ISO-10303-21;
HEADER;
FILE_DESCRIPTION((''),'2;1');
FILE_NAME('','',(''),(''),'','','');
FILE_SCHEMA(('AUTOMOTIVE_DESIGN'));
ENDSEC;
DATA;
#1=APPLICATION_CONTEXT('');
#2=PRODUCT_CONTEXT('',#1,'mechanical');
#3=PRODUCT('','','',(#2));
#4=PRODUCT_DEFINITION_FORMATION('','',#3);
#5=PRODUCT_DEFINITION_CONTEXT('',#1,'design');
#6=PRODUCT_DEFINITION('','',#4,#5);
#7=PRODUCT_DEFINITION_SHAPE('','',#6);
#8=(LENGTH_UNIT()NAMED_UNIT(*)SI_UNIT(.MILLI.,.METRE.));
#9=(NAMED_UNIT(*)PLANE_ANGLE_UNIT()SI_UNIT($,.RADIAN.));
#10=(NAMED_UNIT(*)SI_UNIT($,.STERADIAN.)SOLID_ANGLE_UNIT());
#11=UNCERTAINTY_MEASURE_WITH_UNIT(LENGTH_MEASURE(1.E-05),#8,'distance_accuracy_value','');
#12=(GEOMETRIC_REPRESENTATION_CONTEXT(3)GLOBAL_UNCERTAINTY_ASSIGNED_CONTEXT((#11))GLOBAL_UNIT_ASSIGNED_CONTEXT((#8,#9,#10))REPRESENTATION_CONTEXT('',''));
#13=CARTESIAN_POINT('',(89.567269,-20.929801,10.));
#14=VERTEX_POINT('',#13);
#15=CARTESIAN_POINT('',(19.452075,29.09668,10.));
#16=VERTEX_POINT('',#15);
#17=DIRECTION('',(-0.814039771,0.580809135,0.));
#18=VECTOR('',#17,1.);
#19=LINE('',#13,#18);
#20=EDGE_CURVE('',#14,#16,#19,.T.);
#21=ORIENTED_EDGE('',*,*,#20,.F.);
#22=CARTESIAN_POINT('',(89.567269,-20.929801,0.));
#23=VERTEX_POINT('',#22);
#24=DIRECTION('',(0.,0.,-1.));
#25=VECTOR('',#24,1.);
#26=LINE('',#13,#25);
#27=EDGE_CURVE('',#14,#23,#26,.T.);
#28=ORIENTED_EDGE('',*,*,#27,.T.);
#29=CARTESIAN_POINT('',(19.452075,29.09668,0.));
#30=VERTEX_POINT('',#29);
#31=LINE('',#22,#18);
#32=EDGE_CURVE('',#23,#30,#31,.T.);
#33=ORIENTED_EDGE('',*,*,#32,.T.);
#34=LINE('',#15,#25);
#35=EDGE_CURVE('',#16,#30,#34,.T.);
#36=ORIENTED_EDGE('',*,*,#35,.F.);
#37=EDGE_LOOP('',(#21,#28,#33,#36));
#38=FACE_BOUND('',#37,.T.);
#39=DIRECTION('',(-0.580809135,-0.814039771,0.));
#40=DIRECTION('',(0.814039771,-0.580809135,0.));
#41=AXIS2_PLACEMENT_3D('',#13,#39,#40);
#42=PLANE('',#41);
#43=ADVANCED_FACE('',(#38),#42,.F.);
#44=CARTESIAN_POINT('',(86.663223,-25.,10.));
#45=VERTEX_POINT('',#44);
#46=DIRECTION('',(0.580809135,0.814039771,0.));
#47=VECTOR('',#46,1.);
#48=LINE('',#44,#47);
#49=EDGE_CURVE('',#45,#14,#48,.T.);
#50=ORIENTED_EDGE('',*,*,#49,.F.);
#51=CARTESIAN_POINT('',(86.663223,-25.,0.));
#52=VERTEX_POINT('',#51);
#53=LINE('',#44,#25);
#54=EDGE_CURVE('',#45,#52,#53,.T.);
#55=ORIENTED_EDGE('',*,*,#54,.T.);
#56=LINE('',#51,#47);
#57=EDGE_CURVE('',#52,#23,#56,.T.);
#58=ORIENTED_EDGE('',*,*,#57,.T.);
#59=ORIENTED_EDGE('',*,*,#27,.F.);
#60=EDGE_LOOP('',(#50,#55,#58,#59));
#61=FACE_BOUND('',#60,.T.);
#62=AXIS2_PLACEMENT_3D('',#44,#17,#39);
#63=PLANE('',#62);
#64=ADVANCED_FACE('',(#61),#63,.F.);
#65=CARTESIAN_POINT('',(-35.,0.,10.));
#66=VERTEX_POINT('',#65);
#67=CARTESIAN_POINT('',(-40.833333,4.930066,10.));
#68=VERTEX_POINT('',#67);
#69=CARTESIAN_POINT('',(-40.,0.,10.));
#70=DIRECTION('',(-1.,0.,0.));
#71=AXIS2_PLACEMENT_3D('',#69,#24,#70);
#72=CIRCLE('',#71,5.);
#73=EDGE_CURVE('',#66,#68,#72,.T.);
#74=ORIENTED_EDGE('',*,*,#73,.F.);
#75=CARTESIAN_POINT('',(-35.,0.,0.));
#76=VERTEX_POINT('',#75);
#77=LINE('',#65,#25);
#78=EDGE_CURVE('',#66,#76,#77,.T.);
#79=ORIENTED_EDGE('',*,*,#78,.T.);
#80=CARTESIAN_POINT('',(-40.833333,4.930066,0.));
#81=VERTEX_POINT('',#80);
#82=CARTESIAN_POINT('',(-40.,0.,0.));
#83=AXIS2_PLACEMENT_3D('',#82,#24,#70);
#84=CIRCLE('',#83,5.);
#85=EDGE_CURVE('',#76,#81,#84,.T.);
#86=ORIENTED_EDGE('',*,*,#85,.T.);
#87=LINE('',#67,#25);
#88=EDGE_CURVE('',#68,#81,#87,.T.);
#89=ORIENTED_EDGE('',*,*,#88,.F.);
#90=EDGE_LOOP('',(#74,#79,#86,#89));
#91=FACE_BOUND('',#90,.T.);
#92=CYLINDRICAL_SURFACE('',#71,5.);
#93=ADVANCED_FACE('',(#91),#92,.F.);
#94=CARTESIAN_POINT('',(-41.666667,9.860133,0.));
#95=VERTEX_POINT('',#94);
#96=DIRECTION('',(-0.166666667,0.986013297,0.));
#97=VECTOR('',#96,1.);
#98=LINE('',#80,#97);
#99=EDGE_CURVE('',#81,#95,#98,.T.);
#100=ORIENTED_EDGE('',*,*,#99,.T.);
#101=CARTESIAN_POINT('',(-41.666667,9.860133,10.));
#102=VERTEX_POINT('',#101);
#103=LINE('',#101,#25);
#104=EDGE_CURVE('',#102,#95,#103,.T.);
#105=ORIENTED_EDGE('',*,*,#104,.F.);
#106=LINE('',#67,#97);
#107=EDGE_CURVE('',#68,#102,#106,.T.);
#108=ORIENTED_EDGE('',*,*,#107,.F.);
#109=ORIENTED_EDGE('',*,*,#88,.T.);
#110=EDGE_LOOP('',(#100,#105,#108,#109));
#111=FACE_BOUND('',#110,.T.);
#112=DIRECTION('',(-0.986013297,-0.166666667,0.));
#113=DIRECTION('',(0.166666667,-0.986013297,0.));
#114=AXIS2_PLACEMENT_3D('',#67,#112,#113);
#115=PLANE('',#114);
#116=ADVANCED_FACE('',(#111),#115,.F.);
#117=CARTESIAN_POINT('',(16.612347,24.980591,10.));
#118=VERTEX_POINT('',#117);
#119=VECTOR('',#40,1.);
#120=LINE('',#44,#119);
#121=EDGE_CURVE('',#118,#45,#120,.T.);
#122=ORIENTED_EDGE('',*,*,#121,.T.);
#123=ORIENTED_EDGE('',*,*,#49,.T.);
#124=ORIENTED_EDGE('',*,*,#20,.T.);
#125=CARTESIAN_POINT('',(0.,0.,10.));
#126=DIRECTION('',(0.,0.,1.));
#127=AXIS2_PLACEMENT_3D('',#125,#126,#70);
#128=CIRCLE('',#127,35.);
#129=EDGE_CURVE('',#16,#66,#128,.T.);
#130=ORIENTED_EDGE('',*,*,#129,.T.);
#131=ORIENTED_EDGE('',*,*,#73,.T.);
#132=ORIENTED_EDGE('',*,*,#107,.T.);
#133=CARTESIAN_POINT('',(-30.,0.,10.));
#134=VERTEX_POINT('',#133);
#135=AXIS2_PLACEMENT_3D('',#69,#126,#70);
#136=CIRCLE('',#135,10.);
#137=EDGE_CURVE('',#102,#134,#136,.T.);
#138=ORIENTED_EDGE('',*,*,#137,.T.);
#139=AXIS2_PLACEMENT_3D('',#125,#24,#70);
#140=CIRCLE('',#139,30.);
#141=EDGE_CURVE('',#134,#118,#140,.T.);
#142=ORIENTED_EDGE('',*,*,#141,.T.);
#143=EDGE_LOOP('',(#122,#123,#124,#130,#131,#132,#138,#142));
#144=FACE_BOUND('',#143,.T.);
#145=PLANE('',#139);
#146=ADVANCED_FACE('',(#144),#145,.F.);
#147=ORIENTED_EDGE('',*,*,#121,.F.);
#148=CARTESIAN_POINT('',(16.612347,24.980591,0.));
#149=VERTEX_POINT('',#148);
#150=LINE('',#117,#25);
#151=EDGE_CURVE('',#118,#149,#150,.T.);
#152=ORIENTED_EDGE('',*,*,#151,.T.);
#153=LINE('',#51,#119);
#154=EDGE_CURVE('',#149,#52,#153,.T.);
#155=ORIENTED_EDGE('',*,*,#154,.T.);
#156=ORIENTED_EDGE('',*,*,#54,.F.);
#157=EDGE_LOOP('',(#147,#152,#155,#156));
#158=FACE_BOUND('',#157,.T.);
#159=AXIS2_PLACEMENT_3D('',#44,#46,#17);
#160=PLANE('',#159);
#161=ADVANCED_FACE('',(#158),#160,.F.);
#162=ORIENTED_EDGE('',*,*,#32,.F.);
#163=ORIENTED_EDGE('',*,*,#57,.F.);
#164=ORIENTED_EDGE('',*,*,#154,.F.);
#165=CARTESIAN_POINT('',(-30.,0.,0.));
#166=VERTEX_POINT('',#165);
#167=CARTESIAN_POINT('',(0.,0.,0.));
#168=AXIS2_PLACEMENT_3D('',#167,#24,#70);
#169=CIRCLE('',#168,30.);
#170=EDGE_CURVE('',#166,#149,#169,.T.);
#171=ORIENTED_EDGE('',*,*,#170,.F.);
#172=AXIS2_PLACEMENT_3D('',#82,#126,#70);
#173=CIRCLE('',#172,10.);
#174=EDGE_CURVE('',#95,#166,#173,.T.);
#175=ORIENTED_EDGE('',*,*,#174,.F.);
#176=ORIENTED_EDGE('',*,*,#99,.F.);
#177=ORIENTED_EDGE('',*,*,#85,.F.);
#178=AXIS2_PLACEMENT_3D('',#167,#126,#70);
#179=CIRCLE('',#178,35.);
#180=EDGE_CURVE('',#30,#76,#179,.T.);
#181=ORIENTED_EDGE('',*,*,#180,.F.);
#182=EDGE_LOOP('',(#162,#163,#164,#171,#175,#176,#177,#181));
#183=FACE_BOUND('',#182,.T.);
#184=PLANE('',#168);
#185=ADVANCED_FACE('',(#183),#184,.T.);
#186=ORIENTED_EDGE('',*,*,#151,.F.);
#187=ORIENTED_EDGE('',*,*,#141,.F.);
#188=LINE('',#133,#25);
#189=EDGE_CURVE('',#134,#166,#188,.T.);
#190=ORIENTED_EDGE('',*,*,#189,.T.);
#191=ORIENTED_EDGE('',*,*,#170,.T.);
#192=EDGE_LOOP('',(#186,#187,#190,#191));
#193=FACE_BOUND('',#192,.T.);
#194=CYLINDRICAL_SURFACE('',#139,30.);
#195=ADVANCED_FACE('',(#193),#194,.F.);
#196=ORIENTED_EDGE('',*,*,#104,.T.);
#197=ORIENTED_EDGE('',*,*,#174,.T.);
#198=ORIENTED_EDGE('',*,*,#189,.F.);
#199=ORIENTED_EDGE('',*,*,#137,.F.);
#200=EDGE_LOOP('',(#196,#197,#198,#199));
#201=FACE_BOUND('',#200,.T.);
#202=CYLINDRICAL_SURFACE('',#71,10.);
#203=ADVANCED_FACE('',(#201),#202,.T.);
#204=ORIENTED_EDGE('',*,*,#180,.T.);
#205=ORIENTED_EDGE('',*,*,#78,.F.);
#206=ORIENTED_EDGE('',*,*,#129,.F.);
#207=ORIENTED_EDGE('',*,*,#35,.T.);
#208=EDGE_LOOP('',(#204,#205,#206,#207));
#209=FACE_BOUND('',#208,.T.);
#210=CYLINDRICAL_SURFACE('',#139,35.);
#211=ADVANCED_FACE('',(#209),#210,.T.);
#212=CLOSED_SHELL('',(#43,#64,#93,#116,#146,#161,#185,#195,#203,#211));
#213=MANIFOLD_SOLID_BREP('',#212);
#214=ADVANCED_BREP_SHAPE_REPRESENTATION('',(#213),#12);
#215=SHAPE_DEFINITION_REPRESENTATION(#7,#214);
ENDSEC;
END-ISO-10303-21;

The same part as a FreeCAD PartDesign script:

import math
import FreeCAD as App
import Part
import Sketcher

V = App.Vector
Q = App.Units.Quantity

doc = App.newDocument("Part")
body = doc.addObject("PartDesign::Body", "Body")

# Sketch on XY plane
sketch1 = body.newObject("Sketcher::SketchObject", "Sketch")
sketch1.AttachmentSupport = (doc.getObject("XY_Plane"), [""])
sketch1.MapMode = "FlatFace"
sketch1.addGeometry([
    Part.LineSegment(V(89.6, -20.9, 0), V(19.5, 29.1, 0)),  # 0
    Part.ArcOfCircle(Part.Circle(V(0, 0, 0), V(0, 0, 1), 35), math.radians(56), math.radians(180)),  # 1
    Part.ArcOfCircle(Part.Circle(V(-40, 0, 0), V(0, 0, 1), 5), math.radians(100), math.radians(360)),  # 2
    Part.LineSegment(V(-40.8, 4.9, 0), V(-41.7, 9.9, 0)),  # 3
    Part.ArcOfCircle(Part.Circle(V(-40, 0, 0), V(0, 0, 1), 10), math.radians(100), math.radians(360)),  # 4
    Part.ArcOfCircle(Part.Circle(V(0, 0, 0), V(0, 0, 1), 30), math.radians(56), math.radians(180)),  # 5
    Part.LineSegment(V(16.6, 25, 0), V(86.7, -25, 0)),  # 6
    Part.LineSegment(V(86.7, -25, 0), V(89.6, -20.9, 0)),  # 7
], False)
sketch1.addConstraint([
    Sketcher.Constraint("Coincident", 0, 2, 1, 1),
    Sketcher.Constraint("Tangent", 1, 2, 2, 2),
    Sketcher.Constraint("Coincident", 2, 1, 3, 1),
    Sketcher.Constraint("Coincident", 3, 2, 4, 1),
    Sketcher.Constraint("Tangent", 4, 2, 5, 2),
    Sketcher.Constraint("Coincident", 5, 1, 6, 1),
    Sketcher.Constraint("Coincident", 6, 2, 7, 1),
    Sketcher.Constraint("Coincident", 7, 2, 0, 1),
    Sketcher.Constraint("Coincident", 1, 3, -1, 1),
    Sketcher.Constraint("Coincident", 5, 3, -1, 1),
    Sketcher.Constraint("Coincident", 4, 3, 2, 3),
    Sketcher.Constraint("PointOnObject", 2, 3, -1),
    Sketcher.Constraint("Parallel", 0, 6),
    Sketcher.Constraint("Perpendicular", 6, 7),
    Sketcher.Constraint("Equal", 3, 7),
    Sketcher.Constraint("Radius", 1, Q("35 mm")),
    Sketcher.Constraint("Radius", 2, Q("5 mm")),
    Sketcher.Constraint("Radius", 4, Q("10 mm")),
    Sketcher.Constraint("DistanceY", 6, 2, -1, 1, Q("25 mm")),
    Sketcher.Constraint("DistanceY", 7, 2, -1, 1, Q("20.929801 mm")),
    Sketcher.Constraint("DistanceY", -1, 1, 0, 2, Q("29.09668 mm")),
    Sketcher.Constraint("DistanceX", 2, 1, -1, 1, Q("40.833333 mm")),
    Sketcher.Constraint("DistanceX", 3, 2, -1, 1, Q("41.666667 mm")),
])
pad1 = body.newObject("PartDesign::Pad", "Pad")
pad1.Profile = sketch1
pad1.Length = 10

doc.recompute()
